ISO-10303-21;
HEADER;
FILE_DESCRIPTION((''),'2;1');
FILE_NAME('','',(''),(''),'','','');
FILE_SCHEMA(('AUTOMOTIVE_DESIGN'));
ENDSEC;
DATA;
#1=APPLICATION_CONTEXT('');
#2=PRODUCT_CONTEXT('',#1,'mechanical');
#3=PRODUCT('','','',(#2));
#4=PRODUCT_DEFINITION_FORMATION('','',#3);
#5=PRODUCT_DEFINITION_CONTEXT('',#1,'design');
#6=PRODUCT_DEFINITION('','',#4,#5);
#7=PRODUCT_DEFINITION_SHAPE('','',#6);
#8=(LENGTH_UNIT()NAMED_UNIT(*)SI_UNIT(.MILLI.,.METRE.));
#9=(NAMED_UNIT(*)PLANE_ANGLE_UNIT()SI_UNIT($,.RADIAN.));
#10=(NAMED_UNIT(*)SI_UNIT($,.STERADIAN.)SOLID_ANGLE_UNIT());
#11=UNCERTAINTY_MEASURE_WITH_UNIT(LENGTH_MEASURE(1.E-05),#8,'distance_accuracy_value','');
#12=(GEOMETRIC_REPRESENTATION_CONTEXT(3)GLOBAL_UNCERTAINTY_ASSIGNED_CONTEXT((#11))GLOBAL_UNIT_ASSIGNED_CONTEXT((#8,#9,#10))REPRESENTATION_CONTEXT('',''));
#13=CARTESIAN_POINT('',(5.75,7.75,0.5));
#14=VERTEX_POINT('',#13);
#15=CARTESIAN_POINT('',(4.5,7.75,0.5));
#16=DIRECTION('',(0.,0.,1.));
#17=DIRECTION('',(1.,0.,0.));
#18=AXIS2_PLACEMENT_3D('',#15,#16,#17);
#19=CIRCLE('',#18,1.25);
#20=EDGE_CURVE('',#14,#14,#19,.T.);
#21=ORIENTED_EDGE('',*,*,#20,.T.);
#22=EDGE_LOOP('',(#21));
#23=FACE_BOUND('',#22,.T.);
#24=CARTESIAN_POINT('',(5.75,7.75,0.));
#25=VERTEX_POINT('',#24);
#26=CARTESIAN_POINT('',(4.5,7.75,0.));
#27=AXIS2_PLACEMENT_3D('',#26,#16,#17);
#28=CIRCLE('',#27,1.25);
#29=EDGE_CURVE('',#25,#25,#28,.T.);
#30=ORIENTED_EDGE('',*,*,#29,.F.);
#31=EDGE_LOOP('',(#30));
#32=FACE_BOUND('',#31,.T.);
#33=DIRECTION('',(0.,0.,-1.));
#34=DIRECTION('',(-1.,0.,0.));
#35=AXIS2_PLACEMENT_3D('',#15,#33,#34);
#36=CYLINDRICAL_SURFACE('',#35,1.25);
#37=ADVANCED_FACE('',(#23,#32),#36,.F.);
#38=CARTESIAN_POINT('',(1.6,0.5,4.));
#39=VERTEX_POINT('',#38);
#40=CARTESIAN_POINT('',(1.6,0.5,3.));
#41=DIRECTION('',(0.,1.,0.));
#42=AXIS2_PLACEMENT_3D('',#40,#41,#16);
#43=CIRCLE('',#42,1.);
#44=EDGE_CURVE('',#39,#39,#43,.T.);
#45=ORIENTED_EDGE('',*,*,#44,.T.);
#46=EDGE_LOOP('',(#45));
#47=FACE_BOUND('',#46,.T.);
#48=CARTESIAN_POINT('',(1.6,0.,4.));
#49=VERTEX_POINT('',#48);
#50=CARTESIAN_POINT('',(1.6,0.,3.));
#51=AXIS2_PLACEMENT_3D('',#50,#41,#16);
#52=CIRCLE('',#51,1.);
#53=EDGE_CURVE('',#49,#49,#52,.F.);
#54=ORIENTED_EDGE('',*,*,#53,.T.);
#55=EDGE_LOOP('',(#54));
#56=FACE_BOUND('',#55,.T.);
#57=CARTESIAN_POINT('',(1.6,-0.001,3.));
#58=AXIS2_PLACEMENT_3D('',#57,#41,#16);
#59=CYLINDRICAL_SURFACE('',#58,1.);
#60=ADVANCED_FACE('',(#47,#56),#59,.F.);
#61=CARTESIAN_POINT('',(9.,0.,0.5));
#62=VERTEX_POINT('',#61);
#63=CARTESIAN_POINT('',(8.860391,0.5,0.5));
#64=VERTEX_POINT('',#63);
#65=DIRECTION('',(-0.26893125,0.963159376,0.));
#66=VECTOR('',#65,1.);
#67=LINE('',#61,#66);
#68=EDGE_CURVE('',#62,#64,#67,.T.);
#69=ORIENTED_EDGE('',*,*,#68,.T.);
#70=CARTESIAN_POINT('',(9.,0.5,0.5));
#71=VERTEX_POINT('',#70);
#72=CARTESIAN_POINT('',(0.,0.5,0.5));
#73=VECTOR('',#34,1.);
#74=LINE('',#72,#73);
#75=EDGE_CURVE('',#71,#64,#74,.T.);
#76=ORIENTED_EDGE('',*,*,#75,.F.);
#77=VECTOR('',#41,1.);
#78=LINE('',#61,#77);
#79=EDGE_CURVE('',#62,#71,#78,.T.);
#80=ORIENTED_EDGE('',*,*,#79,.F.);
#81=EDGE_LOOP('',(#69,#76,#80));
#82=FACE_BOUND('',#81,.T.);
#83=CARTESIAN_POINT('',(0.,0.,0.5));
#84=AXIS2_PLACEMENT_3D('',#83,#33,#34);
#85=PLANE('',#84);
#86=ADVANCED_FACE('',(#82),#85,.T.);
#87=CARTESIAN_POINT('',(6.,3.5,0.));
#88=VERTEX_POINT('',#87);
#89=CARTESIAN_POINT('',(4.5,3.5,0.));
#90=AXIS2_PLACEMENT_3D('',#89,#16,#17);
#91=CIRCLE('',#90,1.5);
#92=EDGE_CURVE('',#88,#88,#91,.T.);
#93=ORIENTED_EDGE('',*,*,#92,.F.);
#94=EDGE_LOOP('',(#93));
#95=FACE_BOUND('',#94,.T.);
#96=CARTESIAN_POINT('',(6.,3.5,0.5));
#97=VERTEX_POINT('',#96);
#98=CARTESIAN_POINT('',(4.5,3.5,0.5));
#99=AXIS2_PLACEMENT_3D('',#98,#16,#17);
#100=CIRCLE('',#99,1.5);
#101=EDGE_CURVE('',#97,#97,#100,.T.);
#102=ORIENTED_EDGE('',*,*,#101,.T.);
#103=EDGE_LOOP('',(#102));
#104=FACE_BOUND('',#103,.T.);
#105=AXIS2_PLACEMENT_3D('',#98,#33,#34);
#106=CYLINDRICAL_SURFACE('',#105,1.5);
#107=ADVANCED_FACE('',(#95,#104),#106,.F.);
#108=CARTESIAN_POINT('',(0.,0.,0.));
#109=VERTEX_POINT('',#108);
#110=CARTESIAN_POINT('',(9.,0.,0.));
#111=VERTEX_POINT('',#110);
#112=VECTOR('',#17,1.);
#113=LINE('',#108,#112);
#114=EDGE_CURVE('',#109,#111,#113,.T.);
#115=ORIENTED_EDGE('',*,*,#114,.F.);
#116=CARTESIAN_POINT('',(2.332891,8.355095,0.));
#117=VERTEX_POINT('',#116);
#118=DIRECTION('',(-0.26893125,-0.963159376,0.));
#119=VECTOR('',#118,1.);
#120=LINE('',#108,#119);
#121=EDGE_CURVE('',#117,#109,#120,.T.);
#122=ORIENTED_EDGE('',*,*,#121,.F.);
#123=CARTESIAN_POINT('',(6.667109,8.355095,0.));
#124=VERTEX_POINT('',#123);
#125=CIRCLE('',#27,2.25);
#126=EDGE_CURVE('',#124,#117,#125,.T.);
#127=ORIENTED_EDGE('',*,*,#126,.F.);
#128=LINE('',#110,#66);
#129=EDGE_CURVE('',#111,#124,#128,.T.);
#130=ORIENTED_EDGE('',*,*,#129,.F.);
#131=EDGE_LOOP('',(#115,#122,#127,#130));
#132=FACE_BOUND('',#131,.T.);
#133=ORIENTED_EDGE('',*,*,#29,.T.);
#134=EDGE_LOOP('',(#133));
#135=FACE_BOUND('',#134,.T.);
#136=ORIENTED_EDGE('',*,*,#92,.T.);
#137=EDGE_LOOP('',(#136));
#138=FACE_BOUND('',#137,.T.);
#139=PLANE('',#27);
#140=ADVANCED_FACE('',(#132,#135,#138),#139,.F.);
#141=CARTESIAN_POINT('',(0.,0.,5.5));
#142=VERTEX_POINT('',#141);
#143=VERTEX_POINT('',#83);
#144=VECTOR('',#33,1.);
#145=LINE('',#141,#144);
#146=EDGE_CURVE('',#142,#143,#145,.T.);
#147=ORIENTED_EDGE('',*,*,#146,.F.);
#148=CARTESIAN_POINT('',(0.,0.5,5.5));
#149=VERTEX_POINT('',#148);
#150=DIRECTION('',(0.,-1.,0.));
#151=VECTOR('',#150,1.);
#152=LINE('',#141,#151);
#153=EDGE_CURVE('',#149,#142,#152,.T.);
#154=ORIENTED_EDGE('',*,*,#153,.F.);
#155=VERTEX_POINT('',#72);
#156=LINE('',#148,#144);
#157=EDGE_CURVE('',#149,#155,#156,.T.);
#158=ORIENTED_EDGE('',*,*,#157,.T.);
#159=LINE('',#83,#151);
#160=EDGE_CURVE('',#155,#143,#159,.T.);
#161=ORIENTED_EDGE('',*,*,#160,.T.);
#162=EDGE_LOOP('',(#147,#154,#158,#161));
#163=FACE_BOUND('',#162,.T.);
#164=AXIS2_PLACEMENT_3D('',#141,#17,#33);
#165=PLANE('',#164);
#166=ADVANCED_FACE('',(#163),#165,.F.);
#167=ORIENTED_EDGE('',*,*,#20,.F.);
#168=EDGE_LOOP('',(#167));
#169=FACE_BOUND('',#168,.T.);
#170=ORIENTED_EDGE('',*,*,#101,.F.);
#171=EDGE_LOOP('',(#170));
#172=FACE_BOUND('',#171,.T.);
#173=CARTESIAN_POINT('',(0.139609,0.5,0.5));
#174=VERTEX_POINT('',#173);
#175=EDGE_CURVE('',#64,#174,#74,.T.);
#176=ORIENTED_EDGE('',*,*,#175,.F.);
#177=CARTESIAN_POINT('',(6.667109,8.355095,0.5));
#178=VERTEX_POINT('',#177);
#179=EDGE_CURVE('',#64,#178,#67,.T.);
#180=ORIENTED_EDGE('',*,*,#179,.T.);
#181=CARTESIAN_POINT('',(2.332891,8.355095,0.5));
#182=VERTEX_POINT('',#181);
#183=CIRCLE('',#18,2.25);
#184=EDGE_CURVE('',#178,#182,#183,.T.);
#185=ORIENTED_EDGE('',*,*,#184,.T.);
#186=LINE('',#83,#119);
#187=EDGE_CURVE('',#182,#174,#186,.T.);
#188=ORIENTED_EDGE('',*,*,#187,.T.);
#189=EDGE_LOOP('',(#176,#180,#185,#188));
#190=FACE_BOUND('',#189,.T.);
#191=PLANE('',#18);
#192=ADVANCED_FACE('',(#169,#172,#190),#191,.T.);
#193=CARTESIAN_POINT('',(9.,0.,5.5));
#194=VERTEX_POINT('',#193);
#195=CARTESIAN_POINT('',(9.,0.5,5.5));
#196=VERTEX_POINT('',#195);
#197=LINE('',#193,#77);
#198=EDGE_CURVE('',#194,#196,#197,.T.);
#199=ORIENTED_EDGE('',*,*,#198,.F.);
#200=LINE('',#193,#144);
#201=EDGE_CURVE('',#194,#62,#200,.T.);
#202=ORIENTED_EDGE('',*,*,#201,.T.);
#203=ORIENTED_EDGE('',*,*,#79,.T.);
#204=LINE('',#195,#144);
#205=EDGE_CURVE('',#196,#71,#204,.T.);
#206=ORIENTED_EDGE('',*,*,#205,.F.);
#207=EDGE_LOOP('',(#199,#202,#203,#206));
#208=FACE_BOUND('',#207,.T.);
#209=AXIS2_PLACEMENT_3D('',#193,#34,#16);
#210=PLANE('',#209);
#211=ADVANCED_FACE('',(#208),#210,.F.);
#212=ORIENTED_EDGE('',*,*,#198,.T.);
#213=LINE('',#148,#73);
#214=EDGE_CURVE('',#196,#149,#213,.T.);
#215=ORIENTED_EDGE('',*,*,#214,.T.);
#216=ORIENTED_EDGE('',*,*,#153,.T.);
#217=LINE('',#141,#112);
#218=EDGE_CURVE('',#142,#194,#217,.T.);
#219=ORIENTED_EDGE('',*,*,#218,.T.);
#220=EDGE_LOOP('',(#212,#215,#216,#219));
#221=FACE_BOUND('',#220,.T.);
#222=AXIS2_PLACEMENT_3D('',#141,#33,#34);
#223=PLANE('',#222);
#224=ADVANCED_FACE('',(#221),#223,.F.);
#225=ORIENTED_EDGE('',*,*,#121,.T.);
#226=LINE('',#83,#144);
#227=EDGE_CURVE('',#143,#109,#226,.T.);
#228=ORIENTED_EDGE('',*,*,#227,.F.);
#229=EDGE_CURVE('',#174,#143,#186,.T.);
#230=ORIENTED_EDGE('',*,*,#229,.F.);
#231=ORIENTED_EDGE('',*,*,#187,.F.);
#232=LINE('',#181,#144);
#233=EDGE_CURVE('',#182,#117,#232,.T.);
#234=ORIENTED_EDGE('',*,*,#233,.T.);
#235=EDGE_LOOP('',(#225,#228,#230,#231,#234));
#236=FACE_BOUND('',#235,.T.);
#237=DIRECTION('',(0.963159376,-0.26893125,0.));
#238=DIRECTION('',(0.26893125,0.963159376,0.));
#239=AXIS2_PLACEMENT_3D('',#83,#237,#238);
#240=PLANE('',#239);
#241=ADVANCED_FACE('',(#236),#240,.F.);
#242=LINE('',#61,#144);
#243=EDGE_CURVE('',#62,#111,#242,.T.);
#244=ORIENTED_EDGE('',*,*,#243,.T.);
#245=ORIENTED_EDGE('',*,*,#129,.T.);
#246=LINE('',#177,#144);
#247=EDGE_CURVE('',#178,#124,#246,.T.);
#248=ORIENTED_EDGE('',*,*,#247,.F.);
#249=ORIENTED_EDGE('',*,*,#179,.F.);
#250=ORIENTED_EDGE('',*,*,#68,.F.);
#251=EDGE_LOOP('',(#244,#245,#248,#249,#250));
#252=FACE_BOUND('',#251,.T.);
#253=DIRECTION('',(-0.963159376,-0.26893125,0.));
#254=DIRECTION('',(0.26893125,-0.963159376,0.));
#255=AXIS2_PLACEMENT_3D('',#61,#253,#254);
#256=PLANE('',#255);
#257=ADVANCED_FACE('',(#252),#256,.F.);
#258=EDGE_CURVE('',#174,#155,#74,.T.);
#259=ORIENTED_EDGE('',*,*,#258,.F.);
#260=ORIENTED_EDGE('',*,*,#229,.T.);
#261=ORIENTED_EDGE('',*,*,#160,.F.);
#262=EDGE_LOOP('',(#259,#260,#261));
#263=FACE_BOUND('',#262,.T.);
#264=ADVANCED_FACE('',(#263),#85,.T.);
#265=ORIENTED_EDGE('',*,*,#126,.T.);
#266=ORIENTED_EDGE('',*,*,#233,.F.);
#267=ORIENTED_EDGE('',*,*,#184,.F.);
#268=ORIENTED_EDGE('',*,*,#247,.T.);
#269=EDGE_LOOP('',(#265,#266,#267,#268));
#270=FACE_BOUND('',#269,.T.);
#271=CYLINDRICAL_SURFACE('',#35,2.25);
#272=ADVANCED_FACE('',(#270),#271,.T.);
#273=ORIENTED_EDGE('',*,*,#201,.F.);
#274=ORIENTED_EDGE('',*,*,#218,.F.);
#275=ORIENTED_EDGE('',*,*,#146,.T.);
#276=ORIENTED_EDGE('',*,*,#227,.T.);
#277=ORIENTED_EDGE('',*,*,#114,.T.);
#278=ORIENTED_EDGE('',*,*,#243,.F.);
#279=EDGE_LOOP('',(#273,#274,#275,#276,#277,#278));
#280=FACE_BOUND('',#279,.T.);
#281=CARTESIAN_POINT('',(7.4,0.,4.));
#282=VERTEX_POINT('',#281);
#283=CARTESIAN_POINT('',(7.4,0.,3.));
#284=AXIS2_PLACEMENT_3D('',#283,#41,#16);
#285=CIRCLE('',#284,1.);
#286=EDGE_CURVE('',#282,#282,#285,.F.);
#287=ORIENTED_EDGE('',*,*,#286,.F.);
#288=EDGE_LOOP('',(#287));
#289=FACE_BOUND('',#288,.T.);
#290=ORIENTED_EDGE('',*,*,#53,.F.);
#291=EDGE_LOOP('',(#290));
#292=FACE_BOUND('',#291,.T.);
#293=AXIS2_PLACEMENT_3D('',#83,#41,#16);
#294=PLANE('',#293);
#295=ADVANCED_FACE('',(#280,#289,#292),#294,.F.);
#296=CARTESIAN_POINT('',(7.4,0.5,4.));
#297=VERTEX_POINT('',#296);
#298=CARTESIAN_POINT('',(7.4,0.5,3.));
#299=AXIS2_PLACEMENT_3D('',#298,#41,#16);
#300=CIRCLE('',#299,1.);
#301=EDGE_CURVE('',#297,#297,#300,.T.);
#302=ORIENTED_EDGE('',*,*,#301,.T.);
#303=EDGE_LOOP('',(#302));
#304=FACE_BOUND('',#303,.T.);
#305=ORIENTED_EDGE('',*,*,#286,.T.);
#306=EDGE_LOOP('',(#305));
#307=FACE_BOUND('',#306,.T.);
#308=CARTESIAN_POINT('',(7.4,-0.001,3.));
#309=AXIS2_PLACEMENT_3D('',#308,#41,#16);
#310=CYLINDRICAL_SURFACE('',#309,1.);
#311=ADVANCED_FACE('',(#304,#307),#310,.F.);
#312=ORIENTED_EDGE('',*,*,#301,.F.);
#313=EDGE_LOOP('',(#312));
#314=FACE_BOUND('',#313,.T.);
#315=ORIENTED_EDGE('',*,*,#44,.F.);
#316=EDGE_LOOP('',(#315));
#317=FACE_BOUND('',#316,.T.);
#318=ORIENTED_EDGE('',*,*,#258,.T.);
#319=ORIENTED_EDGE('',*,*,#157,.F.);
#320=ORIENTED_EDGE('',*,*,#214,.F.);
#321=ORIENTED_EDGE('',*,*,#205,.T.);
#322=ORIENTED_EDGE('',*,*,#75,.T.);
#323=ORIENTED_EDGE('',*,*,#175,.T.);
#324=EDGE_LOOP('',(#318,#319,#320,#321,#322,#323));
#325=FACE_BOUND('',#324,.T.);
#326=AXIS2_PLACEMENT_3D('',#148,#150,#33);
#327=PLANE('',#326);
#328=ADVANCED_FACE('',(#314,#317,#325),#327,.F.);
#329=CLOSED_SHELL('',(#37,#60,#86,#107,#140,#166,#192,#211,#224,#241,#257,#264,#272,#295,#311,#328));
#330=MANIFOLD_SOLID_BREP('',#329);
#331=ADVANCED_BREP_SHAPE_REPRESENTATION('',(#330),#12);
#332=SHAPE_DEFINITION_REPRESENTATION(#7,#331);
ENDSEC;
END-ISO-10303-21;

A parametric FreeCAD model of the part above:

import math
import FreeCAD as App
import Part
import Sketcher

doc = App.newDocument("Part")
body = doc.addObject("PartDesign::Body", "Body")

sketch1 = doc.addObject("Sketcher::SketchObject", "Sketch")
body.addObject(sketch1)
sketch1.AttachmentSupport = (doc.XY_Plane, [""])
sketch1.MapMode = "FlatFace"
sketch1.addGeometry([
    Part.LineSegment(App.Vector(0, 0, 0), App.Vector(9, 0, 0)),
    Part.LineSegment(App.Vector(9, 0, 0), App.Vector(6.7, 8.4, 0)),
    Part.ArcOfCircle(Part.Circle(App.Vector(4.5, 7.8, 0), App.Vector(0, 0, 1), 2.2), math.radians(16), math.radians(164)),
    Part.LineSegment(App.Vector(2.3, 8.4, 0), App.Vector(0, 0, 0)),
    Part.Circle(App.Vector(4.5, 3.5, 0), App.Vector(0, 0, 1), 1.5),
    Part.Circle(App.Vector(4.5, 7.8, 0), App.Vector(0, 0, 1), 1.2),
], False)
sketch1.addConstraint([
    Sketcher.Constraint("Coincident", 0, 2, 1, 1),
    Sketcher.Constraint("Tangent", 1, 2, 2, 1),
    Sketcher.Constraint("Tangent", 2, 2, 3, 1),
    Sketcher.Constraint("Coincident", 3, 2, 0, 1),
    Sketcher.Constraint("Horizontal", 0),
    Sketcher.Constraint("Coincident", 3, 2, -1, 1),
    Sketcher.Constraint("Coincident", 5, 3, 2, 3),
    Sketcher.Constraint("Horizontal", 1, 2, 2, 2),
    Sketcher.Constraint("Vertical", 2, 3, 4, 3),
    Sketcher.Constraint("Diameter", 4, 3.0),
    Sketcher.Constraint("Diameter", 5, 2.5),
    Sketcher.Constraint("DistanceX", 0, 1, 0, 2, 9.0),
    Sketcher.Constraint("Radius", 2, 2.25),
    Sketcher.Constraint("DistanceY", -1, 1, 4, 3, 3.5),
    Sketcher.Constraint("DistanceY", -1, 1, 2, 3, 7.75),
])
pad1 = doc.addObject("PartDesign::Pad", "Pad")
body.addObject(pad1)
pad1.Profile = sketch1
pad1.Length = 0.5

sketch2 = doc.addObject("Sketcher::SketchObject", "Sketch001")
body.addObject(sketch2)
sketch2.AttachmentSupport = (doc.XY_Plane, [""])
sketch2.MapMode = "FlatFace"
sketch2.AttachmentOffset = App.Placement(App.Vector(0, 0, 0.5), App.Rotation())
sketch2.addGeometry([
    Part.LineSegment(App.Vector(0, 0.5, 0), App.Vector(0, 0, 0)),
    Part.LineSegment(App.Vector(0, 0, 0), App.Vector(9, 0, 0)),
    Part.LineSegment(App.Vector(9, 0, 0), App.Vector(9, 0.5, 0)),
    Part.LineSegment(App.Vector(9, 0.5, 0), App.Vector(0, 0.5, 0)),
], False)
sketch2.addConstraint([
    Sketcher.Constraint("Coincident", 0, 2, 1, 1),
    Sketcher.Constraint("Coincident", 1, 2, 2, 1),
    Sketcher.Constraint("Coincident", 2, 2, 3, 1),
    Sketcher.Constraint("Coincident", 3, 2, 0, 1),
    Sketcher.Constraint("Vertical", 0),
    Sketcher.Constraint("Horizontal", 1),
    Sketcher.Constraint("Vertical", 2),
    Sketcher.Constraint("Horizontal", 3),
    Sketcher.Constraint("Coincident", 0, 2, -1, 1),
    Sketcher.Constraint("DistanceX", 1, 1, 1, 2, 9.0),
    Sketcher.Constraint("DistanceY", 0, 2, 0, 1, 0.5),
])
pad2 = doc.addObject("PartDesign::Pad", "Pad001")
body.addObject(pad2)
pad2.Profile = sketch2
pad2.Length = 5

sketch3 = doc.addObject("Sketcher::SketchObject", "Sketch002")
body.addObject(sketch3)
sketch3.AttachmentSupport = (doc.XZ_Plane, [""])
sketch3.MapMode = "FlatFace"
sketch3.AttachmentOffset = App.Placement(App.Vector(0, 0, -0.5), App.Rotation())
sketch3.addGeometry(Part.Circle(App.Vector(1.6, 3, 0), App.Vector(0, 0, 1), 1), False)
sketch3.addConstraint([
    Sketcher.Constraint("Diameter", 0, 2.0),
    Sketcher.Constraint("DistanceY", -1, 1, 0, 3, 3.0),
    Sketcher.Constraint("DistanceX", -1, 1, 0, 3, 1.6),
])
pocket1 = doc.addObject("PartDesign::Pocket", "Pocket")
body.addObject(pocket1)
pocket1.Profile = sketch3
pocket1.Type = "UpToFirst"
pocket1.Reversed = True

sketch4 = doc.addObject("Sketcher::SketchObject", "Sketch003")
body.addObject(sketch4)
sketch4.AttachmentSupport = (doc.XZ_Plane, [""])
sketch4.MapMode = "FlatFace"
sketch4.AttachmentOffset = App.Placement(App.Vector(0, 0, -0.5), App.Rotation())
sketch4.addGeometry(Part.Circle(App.Vector(7.4, 3, 0), App.Vector(0, 0, 1), 1), False)
sketch4.addConstraint([
    Sketcher.Constraint("Diameter", 0, 2.0),
    Sketcher.Constraint("DistanceY", -1, 1, 0, 3, 3.0),
    Sketcher.Constraint("DistanceX", -1, 1, 0, 3, 7.4),
])
pocket2 = doc.addObject("PartDesign::Pocket", "Pocket001")
body.addObject(pocket2)
pocket2.Profile = sketch4
pocket2.Type = "UpToFirst"
pocket2.Reversed = True

doc.recompute()
